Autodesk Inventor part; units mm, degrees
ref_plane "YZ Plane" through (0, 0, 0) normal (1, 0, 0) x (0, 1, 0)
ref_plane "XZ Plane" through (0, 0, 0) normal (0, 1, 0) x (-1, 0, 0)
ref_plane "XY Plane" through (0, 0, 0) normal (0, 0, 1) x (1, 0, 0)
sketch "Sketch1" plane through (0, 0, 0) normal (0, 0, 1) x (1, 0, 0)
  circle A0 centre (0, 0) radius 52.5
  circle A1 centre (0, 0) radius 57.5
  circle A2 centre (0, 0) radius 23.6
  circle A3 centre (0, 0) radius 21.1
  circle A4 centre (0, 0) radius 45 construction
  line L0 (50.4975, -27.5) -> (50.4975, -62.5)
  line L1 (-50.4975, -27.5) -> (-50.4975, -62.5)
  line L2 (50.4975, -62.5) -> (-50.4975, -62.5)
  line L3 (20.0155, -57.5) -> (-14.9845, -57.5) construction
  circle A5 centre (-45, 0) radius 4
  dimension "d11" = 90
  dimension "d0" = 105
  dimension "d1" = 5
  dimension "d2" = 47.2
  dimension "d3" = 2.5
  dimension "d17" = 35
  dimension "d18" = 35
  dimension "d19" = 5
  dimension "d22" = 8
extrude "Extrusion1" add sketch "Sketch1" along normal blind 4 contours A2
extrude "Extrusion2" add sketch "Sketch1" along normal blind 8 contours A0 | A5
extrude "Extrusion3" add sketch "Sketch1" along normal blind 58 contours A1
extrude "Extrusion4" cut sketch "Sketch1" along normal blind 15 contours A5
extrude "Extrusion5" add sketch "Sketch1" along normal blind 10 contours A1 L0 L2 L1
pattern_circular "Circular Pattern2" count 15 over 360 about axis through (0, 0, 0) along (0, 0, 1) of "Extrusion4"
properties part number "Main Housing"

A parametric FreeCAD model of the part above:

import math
import FreeCAD as App
import Part
import Sketcher
Q = App.Units.Quantity

doc = App.newDocument("Part")
body = doc.addObject("PartDesign::Body", "Body")

# Sketch on XY plane
sketch1 = body.newObject("Sketcher::SketchObject", "Sketch")
sketch1.AttachmentSupport = (doc.getObject("XY_Plane"), [""])
sketch1.MapMode = "FlatFace"
sketch1.addGeometry([
    Part.Circle(App.Vector(0, 0, 0), App.Vector(0, 0, 1), 23.6),
    Part.Circle(App.Vector(0, 0, 0), App.Vector(0, 0, 1), 21.1),
], False)
sketch1.addConstraint([
    Sketcher.Constraint("Coincident", 0, 3, -1, 1),
    Sketcher.Constraint("Coincident", 1, 3, -1, 1),
    Sketcher.Constraint("Diameter", 0, Q("47.2 mm")),
    Sketcher.Constraint("Diameter", 1, Q("42.2 mm")),
])
pad1 = body.newObject("PartDesign::Pad", "Pad")
pad1.Profile = sketch1
pad1.Length = 4

# Sketch on XY plane
sketch2 = body.newObject("Sketcher::SketchObject", "Sketch001")
sketch2.AttachmentSupport = (doc.getObject("XY_Plane"), [""])
sketch2.MapMode = "FlatFace"
sketch2.addGeometry([
    Part.Circle(App.Vector(0, 0, 0), App.Vector(0, 0, 1), 52.5),
    Part.Circle(App.Vector(0, 0, 0), App.Vector(0, 0, 1), 23.6),
], False)
sketch2.addConstraint([
    Sketcher.Constraint("Coincident", 0, 3, -1, 1),
    Sketcher.Constraint("Coincident", 1, 3, -1, 1),
    Sketcher.Constraint("Diameter", 0, Q("105 mm")),
    Sketcher.Constraint("Diameter", 1, Q("47.2 mm")),
])
pad2 = body.newObject("PartDesign::Pad", "Pad001")
pad2.Profile = sketch2
pad2.Length = 8

# Sketch on XY plane
sketch3 = body.newObject("Sketcher::SketchObject", "Sketch002")
sketch3.AttachmentSupport = (doc.getObject("XY_Plane"), [""])
sketch3.MapMode = "FlatFace"
sketch3.addGeometry([
    Part.Circle(App.Vector(0, 0, 0), App.Vector(0, 0, 1), 57.5),
    Part.Circle(App.Vector(0, 0, 0), App.Vector(0, 0, 1), 52.5),
], False)
sketch3.addConstraint([
    Sketcher.Constraint("Coincident", 0, 3, -1, 1),
    Sketcher.Constraint("Coincident", 1, 3, -1, 1),
    Sketcher.Constraint("Diameter", 1, Q("105 mm")),
    Sketcher.Constraint("Diameter", 0, Q("115 mm")),
])
pad3 = body.newObject("PartDesign::Pad", "Pad002")
pad3.Profile = sketch3
pad3.Length = 58

# Sketch on XY plane
sketch4 = body.newObject("Sketcher::SketchObject", "Sketch003")
sketch4.AttachmentSupport = (doc.getObject("XY_Plane"), [""])
sketch4.MapMode = "FlatFace"
sketch4.addGeometry(Part.Circle(App.Vector(-45, 0, 0), App.Vector(0, 0, 1), 4), False)
sketch4.addConstraint([
    Sketcher.Constraint("PointOnObject", 0, 3, -1),
    Sketcher.Constraint("Diameter", 0, Q("8 mm")),
    Sketcher.Constraint("DistanceX", 0, 3, -1, 1, Q("45 mm")),
])
pocket1 = body.newObject("PartDesign::Pocket", "Pocket")
pocket1.Profile = sketch4
pocket1.Length = 15
pocket1.Reversed = True

# Sketch on XY plane
sketch5 = body.newObject("Sketcher::SketchObject", "Sketch004")
sketch5.AttachmentSupport = (doc.getObject("XY_Plane"), [""])
sketch5.MapMode = "FlatFace"
sketch5.addGeometry([
    Part.ArcOfCircle(Part.Circle(App.Vector(0, 0, 0), App.Vector(0, 0, 1), 57.5), math.radians(-151.42811), math.radians(-28.57189)),
    Part.LineSegment(App.Vector(-50.4975, -27.5, 0), App.Vector(-50.4975, -62.5, 0)),
    Part.LineSegment(App.Vector(-50.4975, -62.5, 0), App.Vector(50.4975, -62.5, 0)),
    Part.LineSegment(App.Vector(50.4975, -62.5, 0), App.Vector(50.4975, -27.5, 0)),
], False)
sketch5.addConstraint([
    Sketcher.Constraint("Coincident", 0, 1, 1, 1),
    Sketcher.Constraint("Coincident", 1, 2, 2, 1),
    Sketcher.Constraint("Coincident", 2, 2, 3, 1),
    Sketcher.Constraint("Coincident", 3, 2, 0, 2),
    Sketcher.Constraint("Vertical", 1),
    Sketcher.Constraint("Horizontal", 2),
    Sketcher.Constraint("Vertical", 3),
    Sketcher.Constraint("Coincident", 0, 3, -1, 1),
    Sketcher.Constraint("Horizontal", 0, 1, 3, 2),
    Sketcher.Constraint("DistanceY", 1, 2, 1, 1, Q("35 mm")),
    Sketcher.Constraint("Radius", 0, Q("57.5 mm")),
    Sketcher.Constraint("DistanceY", 0, 1, -1, 1, Q("27.5 mm")),
])
pad4 = body.newObject("PartDesign::Pad", "Pad003")
pad4.Profile = sketch5
pad4.Length = 10
doc.recompute()

polarpattern = body.newObject("PartDesign::PolarPattern", "PolarPattern")
polarpattern.Originals = [pocket1]
polarpattern.Axis = (doc.getObject("Z_Axis"), [""])
polarpattern.Angle = 360
polarpattern.Occurrences = 15
body.Tip = polarpattern

doc.recompute()
